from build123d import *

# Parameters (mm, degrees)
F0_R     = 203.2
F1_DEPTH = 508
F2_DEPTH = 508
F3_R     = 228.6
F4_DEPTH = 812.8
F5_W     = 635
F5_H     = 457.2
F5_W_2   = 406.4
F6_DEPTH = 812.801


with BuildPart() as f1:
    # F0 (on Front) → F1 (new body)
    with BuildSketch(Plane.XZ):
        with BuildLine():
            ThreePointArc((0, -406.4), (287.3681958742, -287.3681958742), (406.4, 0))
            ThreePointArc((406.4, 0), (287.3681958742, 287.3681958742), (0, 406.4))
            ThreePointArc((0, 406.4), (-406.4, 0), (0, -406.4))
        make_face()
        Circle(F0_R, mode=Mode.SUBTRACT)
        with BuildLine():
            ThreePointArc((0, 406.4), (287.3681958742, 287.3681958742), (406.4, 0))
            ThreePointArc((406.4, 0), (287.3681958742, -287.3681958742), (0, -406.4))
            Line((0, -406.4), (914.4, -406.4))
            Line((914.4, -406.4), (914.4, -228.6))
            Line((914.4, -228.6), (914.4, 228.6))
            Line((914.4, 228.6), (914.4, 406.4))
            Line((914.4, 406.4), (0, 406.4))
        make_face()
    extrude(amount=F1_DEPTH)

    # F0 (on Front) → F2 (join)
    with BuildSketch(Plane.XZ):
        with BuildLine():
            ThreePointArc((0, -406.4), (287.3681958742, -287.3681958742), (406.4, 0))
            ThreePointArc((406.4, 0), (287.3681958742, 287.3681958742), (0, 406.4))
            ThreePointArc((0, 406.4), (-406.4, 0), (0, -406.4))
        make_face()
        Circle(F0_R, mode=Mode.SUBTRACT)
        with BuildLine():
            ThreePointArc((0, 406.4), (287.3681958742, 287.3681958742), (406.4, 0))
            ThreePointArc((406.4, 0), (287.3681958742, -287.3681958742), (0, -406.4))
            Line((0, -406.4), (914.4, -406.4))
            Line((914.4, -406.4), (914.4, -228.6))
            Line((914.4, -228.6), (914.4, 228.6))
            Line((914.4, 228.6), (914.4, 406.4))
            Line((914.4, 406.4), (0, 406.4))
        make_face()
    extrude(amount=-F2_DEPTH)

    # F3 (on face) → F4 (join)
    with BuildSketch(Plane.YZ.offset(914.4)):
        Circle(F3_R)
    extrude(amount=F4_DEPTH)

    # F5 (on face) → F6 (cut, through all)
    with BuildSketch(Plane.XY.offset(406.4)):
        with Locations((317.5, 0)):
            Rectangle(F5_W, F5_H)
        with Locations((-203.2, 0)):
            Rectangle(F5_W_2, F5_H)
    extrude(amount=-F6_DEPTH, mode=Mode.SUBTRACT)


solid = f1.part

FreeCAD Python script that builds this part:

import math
import FreeCAD as App
import Part
import Sketcher

V = App.Vector
Q = App.Units.Quantity


def add_polygon(sketch, points):
    """Adds a closed chain of lines whose ends are joined by coincident constraints."""
    first, n = sketch.GeometryCount, len(points)
    for a, b in zip(points, points[1:] + points[:1]):
        sketch.addGeometry(Part.LineSegment(App.Vector(*a, 0), App.Vector(*b, 0)), False)
    for i in range(n):
        sketch.addConstraint(Sketcher.Constraint("Coincident", first + i, 2, first + (i + 1) % n, 1))

doc = App.newDocument("Part")
body = doc.addObject("PartDesign::Body", "Body")

sketch1 = doc.addObject("Sketcher::SketchObject", "Sketch")
body.addObject(sketch1)
sketch1.AttachmentSupport = (doc.XZ_Plane, [""])
sketch1.MapMode = "FlatFace"
sketch1.addGeometry([
    Part.ArcOfCircle(Part.Circle(V(0, 0, 0), V(0, 0, 1), 406.4), math.radians(90), math.radians(270)),
    Part.LineSegment(V(0, -406.4, 0), V(914.4, -406.4, 0)),
    Part.LineSegment(V(914.4, -406.4, 0), V(914.4, 406.4, 0)),
    Part.LineSegment(V(914.4, 406.4, 0), V(0, 406.4, 0)),
    Part.Circle(V(0, 0, 0), V(0, 0, 1), 203.2),
], False)
sketch1.addConstraint([
    Sketcher.Constraint("Tangent", 0, 2, 1, 1),
    Sketcher.Constraint("Coincident", 1, 2, 2, 1),
    Sketcher.Constraint("Coincident", 2, 2, 3, 1),
    Sketcher.Constraint("Tangent", 3, 2, 0, 1),
    Sketcher.Constraint("Horizontal", 1),
    Sketcher.Constraint("Vertical", 2),
    Sketcher.Constraint("Horizontal", 3),
    Sketcher.Constraint("Coincident", 0, 3, -1, 1),
    Sketcher.Constraint("Coincident", 4, 3, -1, 1),
    Sketcher.Constraint("Diameter", 4, Q("16 in")),
    Sketcher.Constraint("Radius", 0, Q("16 in")),
    Sketcher.Constraint("DistanceX", 1, 1, 1, 2, Q("36 in")),
])
pad1 = doc.addObject("PartDesign::Pad", "Pad")
body.addObject(pad1)
pad1.Profile = sketch1
pad1.Length = Q("20 in")

sketch2 = doc.addObject("Sketcher::SketchObject", "Sketch001")
body.addObject(sketch2)
sketch2.AttachmentSupport = (doc.XZ_Plane, [""])
sketch2.MapMode = "FlatFace"
sketch2.addGeometry([
    Part.ArcOfCircle(Part.Circle(V(0, 0, 0), V(0, 0, 1), 406.4), math.radians(90), math.radians(270)),
    Part.LineSegment(V(0, -406.4, 0), V(914.4, -406.4, 0)),
    Part.LineSegment(V(914.4, -406.4, 0), V(914.4, 406.4, 0)),
    Part.LineSegment(V(914.4, 406.4, 0), V(0, 406.4, 0)),
    Part.Circle(V(0, 0, 0), V(0, 0, 1), 203.2),
], False)
sketch2.addConstraint([
    Sketcher.Constraint("Tangent", 0, 2, 1, 1),
    Sketcher.Constraint("Coincident", 1, 2, 2, 1),
    Sketcher.Constraint("Coincident", 2, 2, 3, 1),
    Sketcher.Constraint("Tangent", 3, 2, 0, 1),
    Sketcher.Constraint("Horizontal", 1),
    Sketcher.Constraint("Vertical", 2),
    Sketcher.Constraint("Horizontal", 3),
    Sketcher.Constraint("Coincident", 0, 3, -1, 1),
    Sketcher.Constraint("Coincident", 4, 3, -1, 1),
    Sketcher.Constraint("Diameter", 4, Q("16 in")),
    Sketcher.Constraint("Radius", 0, Q("16 in")),
    Sketcher.Constraint("DistanceX", 1, 1, 1, 2, Q("36 in")),
])
pad2 = doc.addObject("PartDesign::Pad", "Pad001")
body.addObject(pad2)
pad2.Profile = sketch2
pad2.Length = Q("20 in")
pad2.Reversed = True

sketch3 = doc.addObject("Sketcher::SketchObject", "Sketch002")
body.addObject(sketch3)
sketch3.AttachmentSupport = (doc.YZ_Plane, [""])
sketch3.MapMode = "FlatFace"
sketch3.AttachmentOffset = App.Placement(V(0, 0, 36 * 25.4), App.Rotation())
sketch3.addGeometry(Part.Circle(V(0, 0, 0), V(0, 0, 1), 228.6), False)
sketch3.addConstraint([
    Sketcher.Constraint("Coincident", 0, 3, -1, 1),
    Sketcher.Constraint("Diameter", 0, Q("18 in")),
])
pad3 = doc.addObject("PartDesign::Pad", "Pad002")
body.addObject(pad3)
pad3.Profile = sketch3
pad3.Length = Q("32 in")

sketch4 = doc.addObject("Sketcher::SketchObject", "Sketch003")
body.addObject(sketch4)
sketch4.AttachmentSupport = (doc.XY_Plane, [""])
sketch4.MapMode = "FlatFace"
sketch4.AttachmentOffset = App.Placement(V(0, 0, 16 * 25.4), App.Rotation())
add_polygon(sketch4, [(635, -228.6), (635, 228.6), (-406.4, 228.6), (-406.4, -228.6)])
sketch4.addConstraint([
    Sketcher.Constraint("Vertical", 0),
    Sketcher.Constraint("Horizontal", 1),
    Sketcher.Constraint("Vertical", 2),
    Sketcher.Constraint("Horizontal", 3),
    Sketcher.Constraint("DistanceX", 1, 2, 1, 1, Q("41 in")),
    Sketcher.Constraint("DistanceY", 0, 1, 0, 2, Q("18 in")),
    Sketcher.Constraint("DistanceX", -1, 1, 0, 2, Q("25 in")),
    Sketcher.Constraint("DistanceY", -1, 1, 0, 2, Q("9 in")),
])
pocket1 = doc.addObject("PartDesign::Pocket", "Pocket")
body.addObject(pocket1)
pocket1.Profile = sketch4
pocket1.Type = "ThroughAll"

doc.recompute()
